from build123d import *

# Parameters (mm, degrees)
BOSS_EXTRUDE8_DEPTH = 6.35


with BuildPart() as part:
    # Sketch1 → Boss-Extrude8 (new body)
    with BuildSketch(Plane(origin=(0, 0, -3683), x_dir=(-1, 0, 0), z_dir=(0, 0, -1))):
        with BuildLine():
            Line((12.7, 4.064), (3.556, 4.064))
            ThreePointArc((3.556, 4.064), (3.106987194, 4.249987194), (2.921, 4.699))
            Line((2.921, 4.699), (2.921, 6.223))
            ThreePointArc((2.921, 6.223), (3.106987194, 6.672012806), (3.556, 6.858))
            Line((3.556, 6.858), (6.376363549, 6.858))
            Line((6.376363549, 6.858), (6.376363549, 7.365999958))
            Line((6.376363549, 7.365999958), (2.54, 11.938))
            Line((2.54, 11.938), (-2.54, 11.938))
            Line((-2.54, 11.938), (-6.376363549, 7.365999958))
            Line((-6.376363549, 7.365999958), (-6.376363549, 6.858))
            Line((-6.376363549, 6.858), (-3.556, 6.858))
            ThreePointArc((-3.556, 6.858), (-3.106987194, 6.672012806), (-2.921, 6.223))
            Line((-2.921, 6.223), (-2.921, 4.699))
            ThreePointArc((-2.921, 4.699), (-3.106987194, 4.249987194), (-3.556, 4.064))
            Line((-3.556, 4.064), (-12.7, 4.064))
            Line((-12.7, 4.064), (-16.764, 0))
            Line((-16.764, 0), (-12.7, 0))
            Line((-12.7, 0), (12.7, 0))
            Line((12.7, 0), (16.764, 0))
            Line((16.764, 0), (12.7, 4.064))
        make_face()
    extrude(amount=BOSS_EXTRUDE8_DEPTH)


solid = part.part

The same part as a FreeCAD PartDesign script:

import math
import FreeCAD as App
import Part
import Sketcher
Q = App.Units.Quantity

doc = App.newDocument("Part")
body = doc.addObject("PartDesign::Body", "Body")

sketch1 = body.newObject("Sketcher::SketchObject", "Sketch")
sketch1.AttachmentSupport = (doc.getObject("XY_Plane"), [""])
sketch1.MapMode = "FlatFace"
sketch1.AttachmentOffset = App.Placement(App.Vector(0, 0, -145 * 25.4), App.Rotation())
sketch1.addGeometry([
    Part.LineSegment(App.Vector(-12.7, 4.1, 0), App.Vector(-3.6, 4.1, 0)),
    Part.ArcOfCircle(Part.Circle(App.Vector(-3.6, 4.7, 0), App.Vector(0, 0, 1), 0.6), math.radians(-90), math.radians(0)),
    Part.LineSegment(App.Vector(-2.9, 4.7, 0), App.Vector(-2.9, 6.2, 0)),
    Part.ArcOfCircle(Part.Circle(App.Vector(-3.6, 6.2, 0), App.Vector(0, 0, 1), 0.6), math.radians(0), math.radians(90)),
    Part.LineSegment(App.Vector(-3.6, 6.9, 0), App.Vector(-6.4, 6.9, 0)),
    Part.LineSegment(App.Vector(-6.4, 6.9, 0), App.Vector(-6.4, 7.4, 0)),
    Part.LineSegment(App.Vector(-6.4, 7.4, 0), App.Vector(-2.5, 11.9, 0)),
    Part.LineSegment(App.Vector(-2.5, 11.9, 0), App.Vector(2.5, 11.9, 0)),
    Part.LineSegment(App.Vector(2.5, 11.9, 0), App.Vector(6.4, 7.4, 0)),
    Part.LineSegment(App.Vector(6.4, 7.4, 0), App.Vector(6.4, 6.9, 0)),
    Part.LineSegment(App.Vector(6.4, 6.9, 0), App.Vector(3.6, 6.9, 0)),
    Part.ArcOfCircle(Part.Circle(App.Vector(3.6, 6.2, 0), App.Vector(0, 0, 1), 0.6), math.radians(90), math.radians(180)),
    Part.LineSegment(App.Vector(2.9, 6.2, 0), App.Vector(2.9, 4.7, 0)),
    Part.ArcOfCircle(Part.Circle(App.Vector(3.6, 4.7, 0), App.Vector(0, 0, 1), 0.6), math.radians(180), math.radians(270)),
    Part.LineSegment(App.Vector(3.6, 4.1, 0), App.Vector(12.7, 4.1, 0)),
    Part.LineSegment(App.Vector(12.7, 4.1, 0), App.Vector(16.8, 0, 0)),
    Part.LineSegment(App.Vector(16.8, 0, 0), App.Vector(-16.8, 0, 0)),
    Part.LineSegment(App.Vector(-16.8, 0, 0), App.Vector(-12.7, 4.1, 0)),
], False)
sketch1.addConstraint([
    Sketcher.Constraint("Tangent", 0, 2, 1, 1),
    Sketcher.Constraint("Tangent", 1, 2, 2, 1),
    Sketcher.Constraint("Tangent", 2, 2, 3, 1),
    Sketcher.Constraint("Tangent", 3, 2, 4, 1),
    Sketcher.Constraint("Coincident", 4, 2, 5, 1),
    Sketcher.Constraint("Coincident", 5, 2, 6, 1),
    Sketcher.Constraint("Coincident", 6, 2, 7, 1),
    Sketcher.Constraint("Coincident", 7, 2, 8, 1),
    Sketcher.Constraint("Coincident", 8, 2, 9, 1),
    Sketcher.Constraint("Coincident", 9, 2, 10, 1),
    Sketcher.Constraint("Tangent", 10, 2, 11, 1),
    Sketcher.Constraint("Tangent", 11, 2, 12, 1),
    Sketcher.Constraint("Tangent", 12, 2, 13, 1),
    Sketcher.Constraint("Tangent", 13, 2, 14, 1),
    Sketcher.Constraint("Coincident", 14, 2, 15, 1),
    Sketcher.Constraint("Coincident", 15, 2, 16, 1),
    Sketcher.Constraint("Coincident", 16, 2, 17, 1),
    Sketcher.Constraint("Coincident", 17, 2, 0, 1),
    Sketcher.Constraint("Horizontal", 0),
    Sketcher.Constraint("Vertical", 2),
    Sketcher.Constraint("Horizontal", 4),
    Sketcher.Constraint("Vertical", 5),
    Sketcher.Constraint("Horizontal", 7),
    Sketcher.Constraint("Vertical", 9),
    Sketcher.Constraint("Horizontal", 10),
    Sketcher.Constraint("Vertical", 12),
    Sketcher.Constraint("Horizontal", 14),
    Sketcher.Constraint("Horizontal", 16),
    Sketcher.Constraint("Equal", 1, 3),
    Sketcher.Constraint("Equal", 3, 11),
    Sketcher.Constraint("Equal", 11, 13),
    Sketcher.Constraint("Symmetric", 15, 2, 16, 2, -1, 1),
    Sketcher.Constraint("Symmetric", 3, 3, 11, 3, -2),
    Sketcher.Constraint("Symmetric", 5, 2, 8, 2, -2),
    Sketcher.Constraint("Symmetric", 14, 2, 17, 2, -2),
    Sketcher.Constraint("Perpendicular", 15, 17),
    Sketcher.Constraint("Equal", 6, 8),
    Sketcher.Constraint("DistanceX", 7, 1, 7, 2, Q("0.2 in")),
    Sketcher.Constraint("Angle", 6, Q("50 deg")),
    Sketcher.Constraint("Radius", 1, Q("0.025 in")),
    Sketcher.Constraint("DistanceX", 0, 1, 0, 2, Q("0.36 in")),
    Sketcher.Constraint("DistanceX", 16, 2, 16, 1, Q("1.32 in")),
    Sketcher.Constraint("DistanceY", 2, 1, 2, 2, Q("0.06 in")),
    Sketcher.Constraint("DistanceY", 5, 1, 5, 2, Q("0.02 in")),
    Sketcher.Constraint("DistanceX", -1, 1, 14, 2, Q("0.5 in")),
    Sketcher.Constraint("DistanceY", 3, 2, 6, 2, Q("0.2 in")),
])
pad1 = body.newObject("PartDesign::Pad", "Pad")
pad1.Profile = sketch1
pad1.Length = Q("0.25 in")
pad1.Reversed = True

doc.recompute()
